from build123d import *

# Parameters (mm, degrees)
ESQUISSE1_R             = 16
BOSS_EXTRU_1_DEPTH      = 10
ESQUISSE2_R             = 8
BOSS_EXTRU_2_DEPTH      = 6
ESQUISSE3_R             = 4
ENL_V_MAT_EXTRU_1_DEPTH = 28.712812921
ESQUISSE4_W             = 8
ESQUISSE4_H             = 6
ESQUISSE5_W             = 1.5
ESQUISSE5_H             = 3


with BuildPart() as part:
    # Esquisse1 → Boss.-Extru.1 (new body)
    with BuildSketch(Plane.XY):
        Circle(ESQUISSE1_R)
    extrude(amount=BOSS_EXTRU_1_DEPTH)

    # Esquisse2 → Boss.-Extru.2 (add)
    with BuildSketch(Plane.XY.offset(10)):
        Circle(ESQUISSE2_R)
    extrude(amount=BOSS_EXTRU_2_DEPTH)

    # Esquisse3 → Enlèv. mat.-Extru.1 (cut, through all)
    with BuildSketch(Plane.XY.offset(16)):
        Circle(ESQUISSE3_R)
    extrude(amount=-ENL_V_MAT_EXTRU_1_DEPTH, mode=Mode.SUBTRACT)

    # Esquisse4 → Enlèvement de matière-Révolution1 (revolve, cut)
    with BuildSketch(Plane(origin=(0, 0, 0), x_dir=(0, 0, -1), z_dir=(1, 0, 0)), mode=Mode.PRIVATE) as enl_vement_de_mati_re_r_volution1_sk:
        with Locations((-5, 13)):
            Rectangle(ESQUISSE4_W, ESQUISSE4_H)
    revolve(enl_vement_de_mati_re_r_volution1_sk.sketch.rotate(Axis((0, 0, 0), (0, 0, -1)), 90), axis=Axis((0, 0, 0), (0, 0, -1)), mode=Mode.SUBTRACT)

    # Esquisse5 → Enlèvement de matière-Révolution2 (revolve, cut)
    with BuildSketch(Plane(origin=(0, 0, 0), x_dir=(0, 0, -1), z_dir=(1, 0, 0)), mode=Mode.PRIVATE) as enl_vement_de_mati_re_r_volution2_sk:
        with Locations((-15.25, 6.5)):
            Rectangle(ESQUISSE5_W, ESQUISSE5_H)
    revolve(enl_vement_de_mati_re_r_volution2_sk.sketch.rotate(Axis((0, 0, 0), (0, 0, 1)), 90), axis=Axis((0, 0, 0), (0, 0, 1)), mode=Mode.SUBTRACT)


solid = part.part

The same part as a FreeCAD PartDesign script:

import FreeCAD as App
import Part
import Sketcher
from FreeCAD import Vector
Q = App.Units.Quantity


def add_polygon(sketch, points):
    """Adds a closed chain of lines whose ends are joined by coincident constraints."""
    first, n = sketch.GeometryCount, len(points)
    for a, b in zip(points, points[1:] + points[:1]):
        sketch.addGeometry(Part.LineSegment(App.Vector(*a, 0), App.Vector(*b, 0)), False)
    for i in range(n):
        sketch.addConstraint(Sketcher.Constraint("Coincident", first + i, 2, first + (i + 1) % n, 1))

doc = App.newDocument("Part")
body = doc.addObject("PartDesign::Body", "Body")

# Sketch on XY plane
sketch1 = doc.addObject("Sketcher::SketchObject", "Sketch")
body.addObject(sketch1)
sketch1.AttachmentSupport = (doc.XY_Plane, [""])
sketch1.MapMode = "FlatFace"
sketch1.addGeometry(Part.Circle(Vector(0, 0, 0), Vector(0, 0, 1), 16), False)
sketch1.addConstraint(Sketcher.Constraint("Coincident", 0, 3, -1, 1))
sketch1.addConstraint(Sketcher.Constraint("Diameter", 0, Q("32 mm")))
pad1 = doc.addObject("PartDesign::Pad", "Pad")
body.addObject(pad1)
pad1.Profile = sketch1
pad1.Length = 10

# Sketch on XY plane
sketch2 = doc.addObject("Sketcher::SketchObject", "Sketch001")
body.addObject(sketch2)
sketch2.AttachmentSupport = (doc.XY_Plane, [""])
sketch2.MapMode = "FlatFace"
sketch2.AttachmentOffset = App.Placement(Vector(0, 0, 10), App.Rotation())
sketch2.addGeometry(Part.Circle(Vector(0, 0, 0), Vector(0, 0, 1), 8), False)
sketch2.addConstraint(Sketcher.Constraint("Coincident", 0, 3, -1, 1))
sketch2.addConstraint(Sketcher.Constraint("Diameter", 0, Q("16 mm")))
pad2 = doc.addObject("PartDesign::Pad", "Pad001")
body.addObject(pad2)
pad2.Profile = sketch2
pad2.Length = 6

# Sketch on XY plane
sketch3 = doc.addObject("Sketcher::SketchObject", "Sketch002")
body.addObject(sketch3)
sketch3.AttachmentSupport = (doc.XY_Plane, [""])
sketch3.MapMode = "FlatFace"
sketch3.AttachmentOffset = App.Placement(Vector(0, 0, 16), App.Rotation())
sketch3.addGeometry(Part.Circle(Vector(0, 0, 0), Vector(0, 0, 1), 4), False)
sketch3.addConstraint(Sketcher.Constraint("Coincident", 0, 3, -1, 1))
sketch3.addConstraint(Sketcher.Constraint("Diameter", 0, Q("8 mm")))
pocket1 = doc.addObject("PartDesign::Pocket", "Pocket")
body.addObject(pocket1)
pocket1.Profile = sketch3
pocket1.Type = "ThroughAll"

# Sketch on YZ plane
sketch4 = doc.addObject("Sketcher::SketchObject", "Sketch003")
body.addObject(sketch4)
sketch4.AttachmentSupport = (doc.YZ_Plane, [""])
sketch4.MapMode = "FlatFace"
add_polygon(sketch4, [(16, 9), (10, 9), (10, 1), (16, 1)])  # lines 0-3
sketch4.addConstraint(Sketcher.Constraint("Horizontal", 0))
sketch4.addConstraint(Sketcher.Constraint("Vertical", 1))
sketch4.addConstraint(Sketcher.Constraint("Horizontal", 2))
sketch4.addConstraint(Sketcher.Constraint("Vertical", 3))
sketch4.addConstraint(Sketcher.Constraint("DistanceX", 0, 2, 0, 1, Q("6 mm")))
sketch4.addConstraint(Sketcher.Constraint("DistanceY", 1, 2, 1, 1, Q("8 mm")))
sketch4.addConstraint(Sketcher.Constraint("DistanceX", -1, 1, 0, 2, Q("10 mm")))
sketch4.addConstraint(Sketcher.Constraint("DistanceY", -1, 1, 0, 2, Q("9 mm")))
groove = doc.addObject("PartDesign::Groove", "Groove")
body.addObject(groove)
groove.Profile = sketch4
groove.ReferenceAxis = (sketch4, ["V_Axis"])
groove.Angle = 360

# Sketch on YZ plane
sketch5 = doc.addObject("Sketcher::SketchObject", "Sketch004")
body.addObject(sketch5)
sketch5.AttachmentSupport = (doc.YZ_Plane, [""])
sketch5.MapMode = "FlatFace"
add_polygon(sketch5, [(8, 16), (5, 16), (5, 14.5), (8, 14.5)])  # lines 0-3
sketch5.addConstraint(Sketcher.Constraint("Horizontal", 0))
sketch5.addConstraint(Sketcher.Constraint("Vertical", 1))
sketch5.addConstraint(Sketcher.Constraint("Horizontal", 2))
sketch5.addConstraint(Sketcher.Constraint("Vertical", 3))
sketch5.addConstraint(Sketcher.Constraint("DistanceX", 0, 2, 0, 1, Q("3 mm")))
sketch5.addConstraint(Sketcher.Constraint("DistanceY", 1, 2, 1, 1, Q("1.5 mm")))
sketch5.addConstraint(Sketcher.Constraint("DistanceX", -1, 1, 0, 2, Q("5 mm")))
sketch5.addConstraint(Sketcher.Constraint("DistanceY", -1, 1, 0, 2, Q("16 mm")))
groove2 = doc.addObject("PartDesign::Groove", "Groove001")
body.addObject(groove2)
groove2.Profile = sketch5
groove2.ReferenceAxis = (sketch5, ["V_Axis"])
groove2.Angle = 360

doc.recompute()
